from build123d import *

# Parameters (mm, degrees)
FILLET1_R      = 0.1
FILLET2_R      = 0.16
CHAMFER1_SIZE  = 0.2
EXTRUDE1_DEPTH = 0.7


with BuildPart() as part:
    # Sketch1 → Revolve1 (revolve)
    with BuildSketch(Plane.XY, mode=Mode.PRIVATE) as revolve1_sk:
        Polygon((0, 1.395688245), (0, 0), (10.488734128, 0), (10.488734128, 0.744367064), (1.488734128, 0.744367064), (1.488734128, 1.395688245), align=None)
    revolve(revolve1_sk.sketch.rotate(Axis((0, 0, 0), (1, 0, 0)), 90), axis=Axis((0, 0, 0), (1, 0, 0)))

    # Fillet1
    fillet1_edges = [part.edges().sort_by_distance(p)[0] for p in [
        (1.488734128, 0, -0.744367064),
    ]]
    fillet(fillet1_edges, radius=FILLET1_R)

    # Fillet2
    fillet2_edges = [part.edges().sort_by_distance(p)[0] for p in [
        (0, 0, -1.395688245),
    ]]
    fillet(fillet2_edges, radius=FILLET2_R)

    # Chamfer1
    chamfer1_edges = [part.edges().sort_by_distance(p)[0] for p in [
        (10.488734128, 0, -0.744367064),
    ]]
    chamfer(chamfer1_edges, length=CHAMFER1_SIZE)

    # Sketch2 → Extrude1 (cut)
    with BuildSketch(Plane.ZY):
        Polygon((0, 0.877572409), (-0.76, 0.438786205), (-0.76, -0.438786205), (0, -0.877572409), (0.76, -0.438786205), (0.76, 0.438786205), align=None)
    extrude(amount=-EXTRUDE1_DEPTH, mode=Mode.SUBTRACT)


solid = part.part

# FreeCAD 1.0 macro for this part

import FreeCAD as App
import Part
import Sketcher
Q = App.Units.Quantity


def edges_at(feature, points):
    """Names of the edges that pass closest to the given points."""
    edges = feature.Shape.Edges
    near = lambda p: min(range(len(edges)), key=lambda i: edges[i].distToShape(Part.Vertex(*p))[0])
    return sorted({f"Edge{near(p) + 1}" for p in points})

doc = App.newDocument("Part")
body = doc.addObject("PartDesign::Body", "Body")

# Sketch on XY plane
sketch1 = body.newObject("Sketcher::SketchObject", "Sketch")
sketch1.AttachmentSupport = (doc.getObject("XY_Plane"), [""])
sketch1.MapMode = "FlatFace"
sketch1.addGeometry([
    Part.LineSegment(App.Vector(0, 1.4, 0), App.Vector(0, 0, 0)),  # 0
    Part.LineSegment(App.Vector(0, 0, 0), App.Vector(10.5, 0, 0)),  # 1
    Part.LineSegment(App.Vector(10.5, 0, 0), App.Vector(10.5, 0.7, 0)),  # 2
    Part.LineSegment(App.Vector(10.5, 0.7, 0), App.Vector(1.5, 0.7, 0)),  # 3
    Part.LineSegment(App.Vector(1.5, 0.7, 0), App.Vector(1.5, 1.4, 0)),  # 4
    Part.LineSegment(App.Vector(1.5, 1.4, 0), App.Vector(0, 1.4, 0)),  # 5
], False)
sketch1.addConstraint([
    Sketcher.Constraint("Coincident", 0, 2, 1, 1),
    Sketcher.Constraint("Coincident", 1, 2, 2, 1),
    Sketcher.Constraint("Coincident", 2, 2, 3, 1),
    Sketcher.Constraint("Coincident", 3, 2, 4, 1),
    Sketcher.Constraint("Coincident", 4, 2, 5, 1),
    Sketcher.Constraint("Coincident", 5, 2, 0, 1),
    Sketcher.Constraint("Vertical", 0),
    Sketcher.Constraint("Horizontal", 1),
    Sketcher.Constraint("Vertical", 2),
    Sketcher.Constraint("Horizontal", 3),
    Sketcher.Constraint("Vertical", 4),
    Sketcher.Constraint("Horizontal", 5),
    Sketcher.Constraint("Coincident", 0, 2, -1, 1),
    Sketcher.Constraint("DistanceX", 3, 2, 3, 1, Q("9 mm")),
    Sketcher.Constraint("DistanceY", 0, 2, 0, 1, Q("1.395688 mm")),
    Sketcher.Constraint("DistanceY", 4, 1, 4, 2, Q("0.651321 mm")),
    Sketcher.Constraint("DistanceX", 1, 1, 1, 2, Q("10.488734 mm")),
])
revolution = body.newObject("PartDesign::Revolution", "Revolution")
revolution.Profile = sketch1
revolution.ReferenceAxis = (sketch1, ["H_Axis"])
revolution.Angle = 360
doc.recompute()

fillet = body.newObject("PartDesign::Fillet", "Fillet")
fillet.Base = (revolution, edges_at(revolution, [(1.489, 0, -0.744)]))
fillet.Radius = 0.1
doc.recompute()

fillet2 = body.newObject("PartDesign::Fillet", "Fillet001")
fillet2.Base = (fillet, edges_at(fillet, [(0, 0, -1.396)]))
fillet2.Radius = 0.16
doc.recompute()

chamfer = body.newObject("PartDesign::Chamfer", "Chamfer")
chamfer.Base = (fillet2, edges_at(fillet2, [(10.489, 0, -0.744)]))
chamfer.Size = 0.2

# Sketch on YZ plane
sketch2 = body.newObject("Sketcher::SketchObject", "Sketch001")
sketch2.AttachmentSupport = (doc.getObject("YZ_Plane"), [""])
sketch2.MapMode = "FlatFace"
sketch2.addGeometry([
    Part.LineSegment(App.Vector(0.9, 0, 0), App.Vector(0.4, -0.8, 0)),  # 0
    Part.LineSegment(App.Vector(0.4, -0.8, 0), App.Vector(-0.4, -0.8, 0)),  # 1
    Part.LineSegment(App.Vector(-0.4, -0.8, 0), App.Vector(-0.9, 0, 0)),  # 2
    Part.LineSegment(App.Vector(-0.9, 0, 0), App.Vector(-0.4, 0.8, 0)),  # 3
    Part.LineSegment(App.Vector(-0.4, 0.8, 0), App.Vector(0.4, 0.8, 0)),  # 4
    Part.LineSegment(App.Vector(0.4, 0.8, 0), App.Vector(0.9, 0, 0)),  # 5
], False)
sketch2.addConstraint([
    Sketcher.Constraint("Coincident", 0, 2, 1, 1),
    Sketcher.Constraint("Coincident", 1, 2, 2, 1),
    Sketcher.Constraint("Coincident", 2, 2, 3, 1),
    Sketcher.Constraint("Coincident", 3, 2, 4, 1),
    Sketcher.Constraint("Coincident", 4, 2, 5, 1),
    Sketcher.Constraint("Coincident", 5, 2, 0, 1),
    Sketcher.Constraint("Horizontal", 1),
    Sketcher.Constraint("Horizontal", 4),
    Sketcher.Constraint("Symmetric", 0, 2, 3, 2, -1, 1),
    Sketcher.Constraint("Symmetric", 2, 2, 5, 2, -1, 1),
    Sketcher.Constraint("PointOnObject", 2, 2, -1),
    Sketcher.Constraint("Parallel", 2, 5),
    Sketcher.Constraint("Vertical", 1, 2, 3, 2),
    Sketcher.Constraint("Angle", 0, Q("-120 deg")),
    Sketcher.Constraint("DistanceY", 0, 2, -1, 1, Q("0.76 mm")),
    Sketcher.Constraint("DistanceX", 1, 2, 1, 1, Q("0.877572 mm")),
])
pocket1 = body.newObject("PartDesign::Pocket", "Pocket")
pocket1.Profile = sketch2
pocket1.Length = 0.7
pocket1.Reversed = True

doc.recompute()
